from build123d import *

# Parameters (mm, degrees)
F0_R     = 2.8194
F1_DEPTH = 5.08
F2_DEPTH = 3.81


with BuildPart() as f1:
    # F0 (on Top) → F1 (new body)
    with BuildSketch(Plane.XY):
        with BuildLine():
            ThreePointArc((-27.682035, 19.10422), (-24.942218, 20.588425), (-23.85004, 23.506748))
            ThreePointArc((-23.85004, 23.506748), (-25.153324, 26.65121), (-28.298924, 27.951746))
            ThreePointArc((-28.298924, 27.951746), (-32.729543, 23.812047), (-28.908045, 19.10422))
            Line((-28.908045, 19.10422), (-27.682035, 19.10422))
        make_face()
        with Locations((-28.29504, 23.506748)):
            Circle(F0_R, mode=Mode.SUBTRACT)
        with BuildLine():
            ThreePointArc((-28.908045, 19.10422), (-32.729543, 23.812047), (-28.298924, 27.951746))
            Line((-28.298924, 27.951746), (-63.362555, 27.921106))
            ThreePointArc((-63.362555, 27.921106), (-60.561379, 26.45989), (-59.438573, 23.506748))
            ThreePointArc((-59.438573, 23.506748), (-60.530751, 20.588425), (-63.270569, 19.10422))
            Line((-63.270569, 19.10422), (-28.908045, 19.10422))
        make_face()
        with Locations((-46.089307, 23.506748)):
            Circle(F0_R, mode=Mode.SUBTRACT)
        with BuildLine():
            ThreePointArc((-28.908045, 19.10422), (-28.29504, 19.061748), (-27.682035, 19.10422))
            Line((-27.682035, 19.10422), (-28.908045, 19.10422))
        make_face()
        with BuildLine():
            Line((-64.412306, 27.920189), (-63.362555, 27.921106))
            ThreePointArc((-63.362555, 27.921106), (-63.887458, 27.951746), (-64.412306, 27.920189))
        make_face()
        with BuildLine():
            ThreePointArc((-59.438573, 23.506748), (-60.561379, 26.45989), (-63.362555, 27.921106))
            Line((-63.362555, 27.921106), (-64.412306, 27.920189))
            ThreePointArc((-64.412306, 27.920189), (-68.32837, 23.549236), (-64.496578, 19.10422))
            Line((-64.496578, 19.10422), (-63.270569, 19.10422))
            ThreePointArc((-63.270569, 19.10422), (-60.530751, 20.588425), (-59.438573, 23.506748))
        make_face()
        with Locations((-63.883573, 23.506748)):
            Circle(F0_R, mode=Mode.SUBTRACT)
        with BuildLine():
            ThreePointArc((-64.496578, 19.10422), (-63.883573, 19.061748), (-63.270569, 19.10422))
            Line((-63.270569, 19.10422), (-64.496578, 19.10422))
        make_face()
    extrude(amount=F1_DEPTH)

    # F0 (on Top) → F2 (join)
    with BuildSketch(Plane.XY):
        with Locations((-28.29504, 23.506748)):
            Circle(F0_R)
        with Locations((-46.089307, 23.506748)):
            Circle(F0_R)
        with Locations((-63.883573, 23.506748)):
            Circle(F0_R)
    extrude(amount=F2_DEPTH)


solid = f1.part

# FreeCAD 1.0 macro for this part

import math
import FreeCAD as App
import Part
import Sketcher
from FreeCAD import Vector
Q = App.Units.Quantity

doc = App.newDocument("Part")
params = doc.addObject("Spreadsheet::Sheet", "Params")
for row, (alias, value) in enumerate([
    ("sketch1_diameter", "0.222 in"),
    ("sketch1_diameter2", "0.222 in"),
    ("sketch1_diameter3", "0.222 in"),
    ("sketch1_radius", "0.175 in"),
    ("sketch1_radius2", "0.175 in"),
    ("pad1_length", "0.2 in"),
    ("sketch2_diameter", "0.222 in"),
    ("pad2_length", "0.15 in"),
], start=1):
    params.set(f"A{row}", alias)
    params.set(f"B{row}", "=" + value)
    params.setAlias(f"B{row}", alias)

body = doc.addObject("PartDesign::Body", "Body")

# Sketch on XY plane
sketch1 = body.newObject("Sketcher::SketchObject", "Sketch")
sketch1.AttachmentSupport = (doc.getObject("XY_Plane"), [""])
sketch1.MapMode = "FlatFace"
sketch1.addGeometry(Part.ArcOfCircle(Part.Circle(Vector(-28.295041, 23.506748, 0), Vector(0, 0, 1), 4.445001), math.radians(-82.07313), math.radians(-0.000005)), False)
sketch1.addGeometry(Part.ArcOfCircle(Part.Circle(Vector(-28.295041, 23.506747, 0), Vector(0, 0, 1), 4.445001), math.radians(0.000012), math.radians(90.050056)), False)
sketch1.addGeometry(Part.LineSegment(Vector(-28.298924, 27.951746, 0), Vector(-63.362555, 27.921106, 0)), False)
sketch1.addGeometry(Part.ArcOfCircle(Part.Circle(Vector(-63.883575, 23.506814, 0), Vector(0, 0, 1), 4.444933), math.radians(83.26851), math.radians(96.831591)), False)
sketch1.addGeometry(Part.ArcOfCircle(Part.Circle(Vector(-63.883573, 23.506748, 0), Vector(0, 0, 1), 4.445), math.radians(96.831509), math.radians(262.073142)), False)
sketch1.addGeometry(Part.ArcOfCircle(Part.Circle(Vector(-63.883573, 23.506775, 0), Vector(0, 0, 1), 4.445027), math.radians(-97.926805), math.radians(-82.073195)), False)
sketch1.addGeometry(Part.LineSegment(Vector(-63.270569, 19.10422, 0), Vector(-28.908045, 19.10422, 0)), False)
sketch1.addGeometry(Part.ArcOfCircle(Part.Circle(Vector(-28.29504, 23.506782, 0), Vector(0, 0, 1), 4.445034), math.radians(-97.926799), math.radians(-82.073201)), False)
sketch1.addGeometry(Part.Circle(Vector(-63.883573, 23.506748, 0), Vector(0, 0, 1), 2.8194), False)
sketch1.addGeometry(Part.Circle(Vector(-46.089307, 23.506748, 0), Vector(0, 0, 1), 2.8194), False)
sketch1.addGeometry(Part.Circle(Vector(-28.29504, 23.506748, 0), Vector(0, 0, 1), 2.8194), False)
sketch1.addConstraint(Sketcher.Constraint("Coincident", 0, 2, 1, 1))
sketch1.addConstraint(Sketcher.Constraint("Coincident", 1, 2, 2, 1))
sketch1.addConstraint(Sketcher.Constraint("Coincident", 2, 2, 3, 1))
sketch1.addConstraint(Sketcher.Constraint("Coincident", 3, 2, 4, 1))
sketch1.addConstraint(Sketcher.Constraint("Coincident", 4, 2, 5, 1))
sketch1.addConstraint(Sketcher.Constraint("Coincident", 5, 2, 6, 1))
sketch1.addConstraint(Sketcher.Constraint("Coincident", 6, 2, 7, 1))
sketch1.addConstraint(Sketcher.Constraint("Coincident", 7, 2, 0, 1))
sketch1.addConstraint(Sketcher.Constraint("Horizontal", 6))
sketch1.addConstraint(Sketcher.Constraint("Coincident", 1, 3, 0, 3))
sketch1.addConstraint(Sketcher.Constraint("Coincident", 8, 3, 4, 3))
sketch1.addConstraint(Sketcher.Constraint("Coincident", 10, 3, 0, 3))
sketch1.addConstraint(Sketcher.Constraint("Diameter", 8, Q("0.222 in")))
sketch1.addConstraint(Sketcher.Constraint("Diameter", 9, Q("0.222 in")))
sketch1.addConstraint(Sketcher.Constraint("Diameter", 10, Q("0.222 in")))
sketch1.addConstraint(Sketcher.Constraint("Radius", 0, Q("0.175 in")))
sketch1.addConstraint(Sketcher.Constraint("Radius", 4, Q("0.175 in")))
sketch1.addConstraint(Sketcher.Constraint("DistanceX", 7, 3, 0, 2, Q("0.175 in")))
sketch1.addConstraint(Sketcher.Constraint("DistanceY", 0, 2, 1, 2, Q("0.1749999 in")))
sketch1.addConstraint(Sketcher.Constraint("Radius", 3, Q("4.444933 mm")))
sketch1.addConstraint(Sketcher.Constraint("Radius", 5, Q("4.445027 mm")))
sketch1.addConstraint(Sketcher.Constraint("Radius", 7, Q("4.445034 mm")))
sketch1.addConstraint(Sketcher.Constraint("DistanceX", 6, 1, 6, 2, Q("34.362524 mm")))
sketch1.addConstraint(Sketcher.Constraint("DistanceX", 0, 3, -1, 1, Q("28.295041 mm")))
sketch1.addConstraint(Sketcher.Constraint("DistanceY", -1, 1, 0, 3, Q("23.506748 mm")))
sketch1.addConstraint(Sketcher.Constraint("DistanceY", -1, 1, 8, 3, Q("23.506748 mm")))
sketch1.addConstraint(Sketcher.Constraint("DistanceY", -1, 1, 9, 3, Q("23.506748 mm")))
sketch1.addConstraint(Sketcher.Constraint("DistanceY", -1, 1, 3, 2, Q("27.920189 mm")))
sketch1.addConstraint(Sketcher.Constraint("DistanceX", 4, 2, -1, 1, Q("64.496578 mm")))
sketch1.addConstraint(Sketcher.Constraint("DistanceY", -1, 1, 4, 2, Q("19.10422 mm")))
sketch1.addConstraint(Sketcher.Constraint("DistanceX", 5, 2, -1, 1, Q("63.270569 mm")))
sketch1.addConstraint(Sketcher.Constraint("DistanceY", -1, 1, 7, 2, Q("19.10422 mm")))
sketch1.addConstraint(Sketcher.Constraint("DistanceX", 3, 3, 2, 2, Q("0.52102 mm")))
sketch1.addConstraint(Sketcher.Constraint("DistanceX", 5, 3, 2, 2, Q("0.521018 mm")))
sketch1.addConstraint(Sketcher.Constraint("DistanceX", 2, 2, 9, 3, Q("17.273248 mm")))
sketch1.addConstraint(Sketcher.Constraint("Distance", 2, Q("35.063644 mm")))
sketch1.setExpression("Constraints[12]", "Params.sketch1_diameter")
sketch1.setExpression("Constraints[13]", "Params.sketch1_diameter2")
sketch1.setExpression("Constraints[14]", "Params.sketch1_diameter3")
sketch1.setExpression("Constraints[15]", "Params.sketch1_radius")
sketch1.setExpression("Constraints[16]", "Params.sketch1_radius2")
pad1 = body.newObject("PartDesign::Pad", "Pad")
pad1.Profile = sketch1
pad1.setExpression("Length", "Params.pad1_length")

# Sketch on XY plane
sketch2 = body.newObject("Sketcher::SketchObject", "Sketch001")
sketch2.AttachmentSupport = (doc.getObject("XY_Plane"), [""])
sketch2.MapMode = "FlatFace"
sketch2.addGeometry(Part.Circle(Vector(-28.29504, 23.506748, 0), Vector(0, 0, 1), 2.8194), False)
sketch2.addGeometry(Part.Circle(Vector(-46.089307, 23.506748, 0), Vector(0, 0, 1), 2.8194), False)
sketch2.addGeometry(Part.Circle(Vector(-63.883573, 23.506748, 0), Vector(0, 0, 1), 2.8194), False)
sketch2.addConstraint(Sketcher.Constraint("Equal", 0, 1))
sketch2.addConstraint(Sketcher.Constraint("Equal", 1, 2))
sketch2.addConstraint(Sketcher.Constraint("Horizontal", 0, 3, 1, 3))
sketch2.addConstraint(Sketcher.Constraint("Horizontal", 1, 3, 2, 3))
sketch2.addConstraint(Sketcher.Constraint("Diameter", 0, Q("0.222 in")))
sketch2.addConstraint(Sketcher.Constraint("DistanceX", 0, 3, -1, 1, Q("28.29504 mm")))
sketch2.addConstraint(Sketcher.Constraint("DistanceY", -1, 1, 0, 3, Q("23.506748 mm")))
sketch2.addConstraint(Sketcher.Constraint("DistanceX", 1, 3, -1, 1, Q("46.089307 mm")))
sketch2.addConstraint(Sketcher.Constraint("DistanceX", 2, 3, -1, 1, Q("63.883573 mm")))
sketch2.setExpression("Constraints[4]", "Params.sketch2_diameter")
pad2 = body.newObject("PartDesign::Pad", "Pad001")
pad2.Profile = sketch2
pad2.setExpression("Length", "Params.pad2_length")

doc.recompute()
